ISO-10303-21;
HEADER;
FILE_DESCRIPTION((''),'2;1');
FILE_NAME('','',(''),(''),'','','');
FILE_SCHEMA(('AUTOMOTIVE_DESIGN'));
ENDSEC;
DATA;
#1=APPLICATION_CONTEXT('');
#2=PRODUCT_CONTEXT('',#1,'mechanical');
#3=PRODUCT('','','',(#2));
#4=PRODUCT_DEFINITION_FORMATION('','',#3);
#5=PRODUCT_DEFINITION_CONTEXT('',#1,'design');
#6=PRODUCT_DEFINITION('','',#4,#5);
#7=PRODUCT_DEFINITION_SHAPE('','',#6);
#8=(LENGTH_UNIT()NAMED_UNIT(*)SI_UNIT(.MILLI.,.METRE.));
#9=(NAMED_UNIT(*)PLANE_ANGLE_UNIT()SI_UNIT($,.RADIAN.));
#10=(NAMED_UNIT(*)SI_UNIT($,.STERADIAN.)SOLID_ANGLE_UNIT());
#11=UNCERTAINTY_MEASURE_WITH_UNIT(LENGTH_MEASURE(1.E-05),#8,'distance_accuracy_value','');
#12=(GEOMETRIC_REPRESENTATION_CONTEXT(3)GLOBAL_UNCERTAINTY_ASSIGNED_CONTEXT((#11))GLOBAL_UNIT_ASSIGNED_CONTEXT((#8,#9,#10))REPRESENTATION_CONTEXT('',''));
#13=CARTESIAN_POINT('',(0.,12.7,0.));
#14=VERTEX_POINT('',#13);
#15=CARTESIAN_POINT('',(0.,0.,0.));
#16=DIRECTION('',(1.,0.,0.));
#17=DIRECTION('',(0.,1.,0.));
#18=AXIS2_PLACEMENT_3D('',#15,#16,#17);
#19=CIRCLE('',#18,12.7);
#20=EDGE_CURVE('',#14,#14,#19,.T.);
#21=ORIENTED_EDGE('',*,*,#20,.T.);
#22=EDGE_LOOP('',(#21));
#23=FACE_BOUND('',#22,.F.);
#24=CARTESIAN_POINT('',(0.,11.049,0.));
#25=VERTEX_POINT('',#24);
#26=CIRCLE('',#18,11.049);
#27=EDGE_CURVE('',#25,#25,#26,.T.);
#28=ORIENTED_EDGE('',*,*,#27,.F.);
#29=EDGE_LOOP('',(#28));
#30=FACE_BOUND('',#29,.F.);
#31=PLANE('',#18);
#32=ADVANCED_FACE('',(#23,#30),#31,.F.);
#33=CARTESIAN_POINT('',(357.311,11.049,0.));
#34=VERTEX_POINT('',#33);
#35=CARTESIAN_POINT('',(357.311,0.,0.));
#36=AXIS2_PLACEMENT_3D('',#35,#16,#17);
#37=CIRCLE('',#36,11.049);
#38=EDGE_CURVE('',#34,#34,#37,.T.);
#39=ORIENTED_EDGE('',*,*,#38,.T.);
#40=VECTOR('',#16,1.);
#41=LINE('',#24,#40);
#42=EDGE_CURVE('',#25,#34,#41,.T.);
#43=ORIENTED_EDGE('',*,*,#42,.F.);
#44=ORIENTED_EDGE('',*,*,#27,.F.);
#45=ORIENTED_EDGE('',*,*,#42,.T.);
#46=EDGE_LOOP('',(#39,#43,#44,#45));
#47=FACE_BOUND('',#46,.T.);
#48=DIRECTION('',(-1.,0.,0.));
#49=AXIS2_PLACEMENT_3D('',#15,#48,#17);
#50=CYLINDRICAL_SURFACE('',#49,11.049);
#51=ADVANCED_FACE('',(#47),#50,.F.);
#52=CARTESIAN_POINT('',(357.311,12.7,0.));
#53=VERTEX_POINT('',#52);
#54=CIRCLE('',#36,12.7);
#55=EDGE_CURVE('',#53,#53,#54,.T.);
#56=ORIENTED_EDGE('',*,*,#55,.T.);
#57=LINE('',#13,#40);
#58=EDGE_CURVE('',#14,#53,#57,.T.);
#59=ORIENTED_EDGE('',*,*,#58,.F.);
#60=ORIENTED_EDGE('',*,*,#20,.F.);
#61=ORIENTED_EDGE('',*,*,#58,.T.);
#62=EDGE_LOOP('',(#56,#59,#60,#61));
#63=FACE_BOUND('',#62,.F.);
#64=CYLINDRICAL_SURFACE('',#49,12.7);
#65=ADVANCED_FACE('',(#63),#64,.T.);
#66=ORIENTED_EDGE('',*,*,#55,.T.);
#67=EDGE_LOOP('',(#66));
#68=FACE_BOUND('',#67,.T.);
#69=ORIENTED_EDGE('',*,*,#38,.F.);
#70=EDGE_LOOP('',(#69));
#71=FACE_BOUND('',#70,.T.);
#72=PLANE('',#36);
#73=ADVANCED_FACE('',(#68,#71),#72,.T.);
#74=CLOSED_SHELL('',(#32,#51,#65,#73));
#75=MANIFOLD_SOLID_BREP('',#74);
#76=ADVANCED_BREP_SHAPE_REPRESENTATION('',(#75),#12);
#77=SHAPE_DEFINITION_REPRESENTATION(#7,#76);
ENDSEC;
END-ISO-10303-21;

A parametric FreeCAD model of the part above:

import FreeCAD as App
import Part
import Sketcher
Q = App.Units.Quantity

doc = App.newDocument("Part")
body = doc.addObject("PartDesign::Body", "Body")

# Sketch on YZ plane
sketch1 = body.newObject("Sketcher::SketchObject", "Sketch")
sketch1.AttachmentSupport = (doc.getObject("YZ_Plane"), [""])
sketch1.MapMode = "FlatFace"
sketch1.addGeometry([
    Part.Circle(App.Vector(0, 0, 0), App.Vector(0, 0, 1), 13),
    Part.Circle(App.Vector(0, 0, 0), App.Vector(0, 0, 1), 11),
], False)
sketch1.addConstraint([
    Sketcher.Constraint("Coincident", 0, 3, -1, 1),
    Sketcher.Constraint("Coincident", 1, 3, -1, 1),
    Sketcher.Constraint("Diameter", 0, Q("1 in")),
    Sketcher.Constraint("Diameter", 1, Q("0.87 in")),
])
pad1 = body.newObject("PartDesign::Pad", "Pad")
pad1.Profile = sketch1
pad1.Length = 357.311

doc.recompute()
